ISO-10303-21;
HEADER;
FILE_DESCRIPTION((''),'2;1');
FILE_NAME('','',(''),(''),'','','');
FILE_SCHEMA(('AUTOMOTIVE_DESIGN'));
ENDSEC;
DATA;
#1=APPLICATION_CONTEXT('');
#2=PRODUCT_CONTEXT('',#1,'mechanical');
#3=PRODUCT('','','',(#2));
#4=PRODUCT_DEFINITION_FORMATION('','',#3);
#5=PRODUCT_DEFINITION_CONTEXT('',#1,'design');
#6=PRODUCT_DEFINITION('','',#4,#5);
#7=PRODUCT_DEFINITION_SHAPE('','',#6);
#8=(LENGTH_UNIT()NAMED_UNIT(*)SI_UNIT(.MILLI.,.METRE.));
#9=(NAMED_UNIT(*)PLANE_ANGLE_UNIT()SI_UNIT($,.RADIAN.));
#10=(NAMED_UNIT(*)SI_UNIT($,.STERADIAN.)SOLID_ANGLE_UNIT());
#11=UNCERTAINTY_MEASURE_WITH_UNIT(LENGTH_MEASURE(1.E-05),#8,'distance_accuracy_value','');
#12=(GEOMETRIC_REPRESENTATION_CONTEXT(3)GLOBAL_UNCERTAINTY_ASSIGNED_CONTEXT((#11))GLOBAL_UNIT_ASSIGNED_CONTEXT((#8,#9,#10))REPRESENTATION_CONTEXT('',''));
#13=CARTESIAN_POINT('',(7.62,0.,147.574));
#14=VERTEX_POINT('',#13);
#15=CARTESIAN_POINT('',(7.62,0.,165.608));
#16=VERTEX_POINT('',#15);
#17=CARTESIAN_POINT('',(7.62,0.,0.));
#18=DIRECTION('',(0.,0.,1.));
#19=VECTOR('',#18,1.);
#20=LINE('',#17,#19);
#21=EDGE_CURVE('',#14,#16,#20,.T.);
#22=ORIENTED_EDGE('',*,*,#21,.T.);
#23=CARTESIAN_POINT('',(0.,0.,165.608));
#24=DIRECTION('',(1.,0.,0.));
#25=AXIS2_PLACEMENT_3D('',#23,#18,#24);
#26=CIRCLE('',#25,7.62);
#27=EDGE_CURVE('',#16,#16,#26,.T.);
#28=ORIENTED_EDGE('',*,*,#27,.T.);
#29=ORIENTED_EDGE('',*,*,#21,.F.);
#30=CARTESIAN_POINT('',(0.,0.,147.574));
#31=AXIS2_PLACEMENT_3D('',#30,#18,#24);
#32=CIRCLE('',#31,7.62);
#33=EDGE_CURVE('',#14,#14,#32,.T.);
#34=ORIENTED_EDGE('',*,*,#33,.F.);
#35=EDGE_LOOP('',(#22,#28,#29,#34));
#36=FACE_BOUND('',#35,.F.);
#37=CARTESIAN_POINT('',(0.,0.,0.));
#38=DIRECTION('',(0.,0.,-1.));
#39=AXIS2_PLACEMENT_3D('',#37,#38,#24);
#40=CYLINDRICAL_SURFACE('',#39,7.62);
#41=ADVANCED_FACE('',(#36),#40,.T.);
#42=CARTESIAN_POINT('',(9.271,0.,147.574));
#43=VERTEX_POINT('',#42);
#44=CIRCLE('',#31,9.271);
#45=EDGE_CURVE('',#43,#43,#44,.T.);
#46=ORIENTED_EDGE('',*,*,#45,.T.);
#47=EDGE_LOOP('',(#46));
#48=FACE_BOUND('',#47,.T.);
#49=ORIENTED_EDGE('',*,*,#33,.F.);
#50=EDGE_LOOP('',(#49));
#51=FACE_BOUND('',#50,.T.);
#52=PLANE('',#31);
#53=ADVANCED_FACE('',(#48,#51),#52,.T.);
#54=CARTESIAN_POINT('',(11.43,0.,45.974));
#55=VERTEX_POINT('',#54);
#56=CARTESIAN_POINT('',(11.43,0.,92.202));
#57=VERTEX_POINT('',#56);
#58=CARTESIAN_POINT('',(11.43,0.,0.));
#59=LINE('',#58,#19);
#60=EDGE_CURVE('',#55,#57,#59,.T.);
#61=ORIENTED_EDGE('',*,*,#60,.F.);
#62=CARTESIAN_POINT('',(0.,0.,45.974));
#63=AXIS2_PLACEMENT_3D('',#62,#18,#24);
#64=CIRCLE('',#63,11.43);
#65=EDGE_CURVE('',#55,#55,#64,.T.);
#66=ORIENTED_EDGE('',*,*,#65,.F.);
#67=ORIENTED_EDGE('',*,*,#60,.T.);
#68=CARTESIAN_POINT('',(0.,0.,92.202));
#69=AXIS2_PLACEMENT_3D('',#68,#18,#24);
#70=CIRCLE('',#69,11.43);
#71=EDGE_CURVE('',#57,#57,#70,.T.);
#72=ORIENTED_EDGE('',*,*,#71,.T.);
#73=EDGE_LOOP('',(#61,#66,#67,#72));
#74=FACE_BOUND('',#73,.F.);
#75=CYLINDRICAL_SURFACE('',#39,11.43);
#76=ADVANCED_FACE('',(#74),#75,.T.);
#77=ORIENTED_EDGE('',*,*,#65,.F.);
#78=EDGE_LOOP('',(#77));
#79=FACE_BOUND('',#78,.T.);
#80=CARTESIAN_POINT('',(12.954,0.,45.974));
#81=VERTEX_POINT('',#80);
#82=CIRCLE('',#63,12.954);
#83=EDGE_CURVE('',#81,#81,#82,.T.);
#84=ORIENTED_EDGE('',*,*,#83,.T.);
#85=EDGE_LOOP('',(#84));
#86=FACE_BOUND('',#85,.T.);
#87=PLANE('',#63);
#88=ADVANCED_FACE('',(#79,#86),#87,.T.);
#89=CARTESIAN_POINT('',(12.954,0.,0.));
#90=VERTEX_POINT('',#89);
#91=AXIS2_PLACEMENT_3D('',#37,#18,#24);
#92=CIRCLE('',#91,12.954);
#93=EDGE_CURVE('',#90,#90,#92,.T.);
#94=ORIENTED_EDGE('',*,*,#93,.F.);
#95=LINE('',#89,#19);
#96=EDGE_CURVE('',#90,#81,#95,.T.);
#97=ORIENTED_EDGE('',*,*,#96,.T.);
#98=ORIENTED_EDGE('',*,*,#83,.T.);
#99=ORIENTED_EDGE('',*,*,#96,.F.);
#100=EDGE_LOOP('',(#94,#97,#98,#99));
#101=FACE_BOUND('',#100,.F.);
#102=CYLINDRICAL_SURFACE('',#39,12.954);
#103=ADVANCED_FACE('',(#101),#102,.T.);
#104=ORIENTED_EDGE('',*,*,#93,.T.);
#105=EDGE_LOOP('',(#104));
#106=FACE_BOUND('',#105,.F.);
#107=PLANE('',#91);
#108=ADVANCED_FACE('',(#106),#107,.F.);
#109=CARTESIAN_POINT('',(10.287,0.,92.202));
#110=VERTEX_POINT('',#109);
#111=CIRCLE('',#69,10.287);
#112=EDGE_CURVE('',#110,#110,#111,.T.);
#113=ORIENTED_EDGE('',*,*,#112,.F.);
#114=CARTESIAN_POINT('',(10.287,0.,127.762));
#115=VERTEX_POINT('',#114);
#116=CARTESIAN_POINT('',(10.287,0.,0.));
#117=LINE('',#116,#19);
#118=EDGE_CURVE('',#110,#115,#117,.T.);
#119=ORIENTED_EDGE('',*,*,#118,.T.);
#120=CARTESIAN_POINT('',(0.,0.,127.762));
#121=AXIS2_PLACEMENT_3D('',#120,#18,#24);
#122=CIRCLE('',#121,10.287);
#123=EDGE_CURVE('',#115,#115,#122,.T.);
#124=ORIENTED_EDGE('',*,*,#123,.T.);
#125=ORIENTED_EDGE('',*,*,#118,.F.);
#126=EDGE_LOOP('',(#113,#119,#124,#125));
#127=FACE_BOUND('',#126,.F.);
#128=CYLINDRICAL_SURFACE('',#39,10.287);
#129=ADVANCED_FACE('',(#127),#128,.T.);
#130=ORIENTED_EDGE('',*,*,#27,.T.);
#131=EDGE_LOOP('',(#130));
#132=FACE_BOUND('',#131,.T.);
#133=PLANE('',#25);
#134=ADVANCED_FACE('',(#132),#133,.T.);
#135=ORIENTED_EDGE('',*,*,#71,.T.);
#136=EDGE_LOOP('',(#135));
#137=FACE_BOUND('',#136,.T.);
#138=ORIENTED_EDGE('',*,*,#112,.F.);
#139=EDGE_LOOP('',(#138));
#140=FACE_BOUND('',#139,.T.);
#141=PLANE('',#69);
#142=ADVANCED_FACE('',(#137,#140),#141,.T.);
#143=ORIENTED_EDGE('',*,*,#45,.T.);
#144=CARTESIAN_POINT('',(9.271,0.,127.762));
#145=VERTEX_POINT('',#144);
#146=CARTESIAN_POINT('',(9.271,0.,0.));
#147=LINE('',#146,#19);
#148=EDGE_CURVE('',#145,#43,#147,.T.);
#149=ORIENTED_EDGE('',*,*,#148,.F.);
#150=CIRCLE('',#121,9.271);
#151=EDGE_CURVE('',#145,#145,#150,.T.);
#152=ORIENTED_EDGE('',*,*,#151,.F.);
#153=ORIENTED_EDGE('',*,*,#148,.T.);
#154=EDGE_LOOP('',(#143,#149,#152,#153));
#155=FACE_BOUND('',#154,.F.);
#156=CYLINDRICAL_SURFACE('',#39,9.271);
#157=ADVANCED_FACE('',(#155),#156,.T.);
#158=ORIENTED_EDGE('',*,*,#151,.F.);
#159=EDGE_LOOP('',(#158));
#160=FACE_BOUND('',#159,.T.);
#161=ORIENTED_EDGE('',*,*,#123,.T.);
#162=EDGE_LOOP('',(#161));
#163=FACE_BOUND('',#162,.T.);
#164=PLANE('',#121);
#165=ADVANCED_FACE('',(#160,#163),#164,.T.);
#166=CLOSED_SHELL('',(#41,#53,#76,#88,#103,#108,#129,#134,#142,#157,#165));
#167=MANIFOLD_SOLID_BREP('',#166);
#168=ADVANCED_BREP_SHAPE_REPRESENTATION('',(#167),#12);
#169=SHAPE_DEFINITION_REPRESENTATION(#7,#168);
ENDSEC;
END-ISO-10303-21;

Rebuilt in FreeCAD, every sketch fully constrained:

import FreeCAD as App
import Part
import Sketcher

V = App.Vector
Q = App.Units.Quantity

doc = App.newDocument("Part")
params = doc.addObject("Spreadsheet::Sheet", "Params")
for row, (alias, value) in enumerate([
    ("sketch1_diameter", "0.9 in"),
    ("sketch1_diameter2", "1.02 in"),
    ("pad1_length", "1.81 in"),
    ("sketch2_diameter", "0.9 in"),
    ("sketch2_diameter2", "0.81 in"),
    ("pad2_length", "3.63 in"),
    ("sketch3_diameter", "0.81 in"),
    ("sketch3_diameter2", "0.73 in"),
    ("pad3_length", "5.03 in"),
    ("sketch4_diameter", "0.6 in"),
    ("sketch4_diameter2", "0.73 in"),
    ("pad4_length", "5.81 in"),
    ("sketch5_diameter", "0.6 in"),
    ("pad5_length", "6.52 in"),
], start=1):
    params.set(f"A{row}", alias)
    params.set(f"B{row}", "=" + value)
    params.setAlias(f"B{row}", alias)

body = doc.addObject("PartDesign::Body", "Body")

sketch1 = body.newObject("Sketcher::SketchObject", "Sketch")
sketch1.AttachmentSupport = (doc.getObject("XY_Plane"), [""])
sketch1.MapMode = "FlatFace"
sketch1.addGeometry(Part.Circle(V(0, 0, 0), V(0, 0, 1), 12.954), False)
sketch1.addGeometry(Part.Circle(V(0, 0, 0), V(0, 0, 1), 11.43), False)
sketch1.addConstraint(Sketcher.Constraint("Coincident", 0, 3, -1, 1))
sketch1.addConstraint(Sketcher.Constraint("Coincident", 1, 3, -1, 1))
sketch1.addConstraint(Sketcher.Constraint("Diameter", 1, Q("0.9 in")))
sketch1.addConstraint(Sketcher.Constraint("Diameter", 0, Q("1.02 in")))
sketch1.setExpression("Constraints[2]", "Params.sketch1_diameter")
sketch1.setExpression("Constraints[3]", "Params.sketch1_diameter2")
pad1 = body.newObject("PartDesign::Pad", "Pad")
pad1.Profile = sketch1
pad1.setExpression("Length", "Params.pad1_length")

sketch2 = body.newObject("Sketcher::SketchObject", "Sketch001")
sketch2.AttachmentSupport = (doc.getObject("XY_Plane"), [""])
sketch2.MapMode = "FlatFace"
sketch2.addGeometry(Part.Circle(V(0, 0, 0), V(0, 0, 1), 11.43), False)
sketch2.addGeometry(Part.Circle(V(0, 0, 0), V(0, 0, 1), 10.287), False)
sketch2.addConstraint(Sketcher.Constraint("Coincident", 0, 3, -1, 1))
sketch2.addConstraint(Sketcher.Constraint("Coincident", 1, 3, -1, 1))
sketch2.addConstraint(Sketcher.Constraint("Diameter", 0, Q("0.9 in")))
sketch2.addConstraint(Sketcher.Constraint("Diameter", 1, Q("0.81 in")))
sketch2.setExpression("Constraints[2]", "Params.sketch2_diameter")
sketch2.setExpression("Constraints[3]", "Params.sketch2_diameter2")
pad2 = body.newObject("PartDesign::Pad", "Pad001")
pad2.Profile = sketch2
pad2.setExpression("Length", "Params.pad2_length")

sketch3 = body.newObject("Sketcher::SketchObject", "Sketch002")
sketch3.AttachmentSupport = (doc.getObject("XY_Plane"), [""])
sketch3.MapMode = "FlatFace"
sketch3.addGeometry(Part.Circle(V(0, 0, 0), V(0, 0, 1), 10.287), False)
sketch3.addGeometry(Part.Circle(V(0, 0, 0), V(0, 0, 1), 9.271), False)
sketch3.addConstraint(Sketcher.Constraint("Coincident", 0, 3, -1, 1))
sketch3.addConstraint(Sketcher.Constraint("Coincident", 1, 3, -1, 1))
sketch3.addConstraint(Sketcher.Constraint("Diameter", 0, Q("0.81 in")))
sketch3.addConstraint(Sketcher.Constraint("Diameter", 1, Q("0.73 in")))
sketch3.setExpression("Constraints[2]", "Params.sketch3_diameter")
sketch3.setExpression("Constraints[3]", "Params.sketch3_diameter2")
pad3 = body.newObject("PartDesign::Pad", "Pad002")
pad3.Profile = sketch3
pad3.setExpression("Length", "Params.pad3_length")

sketch4 = body.newObject("Sketcher::SketchObject", "Sketch003")
sketch4.AttachmentSupport = (doc.getObject("XY_Plane"), [""])
sketch4.MapMode = "FlatFace"
sketch4.addGeometry(Part.Circle(V(0, 0, 0), V(0, 0, 1), 9.271), False)
sketch4.addGeometry(Part.Circle(V(0, 0, 0), V(0, 0, 1), 7.62), False)
sketch4.addConstraint(Sketcher.Constraint("Coincident", 0, 3, -1, 1))
sketch4.addConstraint(Sketcher.Constraint("Coincident", 1, 3, -1, 1))
sketch4.addConstraint(Sketcher.Constraint("Diameter", 1, Q("0.6 in")))
sketch4.addConstraint(Sketcher.Constraint("Diameter", 0, Q("0.73 in")))
sketch4.setExpression("Constraints[2]", "Params.sketch4_diameter")
sketch4.setExpression("Constraints[3]", "Params.sketch4_diameter2")
pad4 = body.newObject("PartDesign::Pad", "Pad003")
pad4.Profile = sketch4
pad4.setExpression("Length", "Params.pad4_length")

sketch5 = body.newObject("Sketcher::SketchObject", "Sketch004")
sketch5.AttachmentSupport = (doc.getObject("XY_Plane"), [""])
sketch5.MapMode = "FlatFace"
sketch5.addGeometry(Part.Circle(V(0, 0, 0), V(0, 0, 1), 7.62), False)
sketch5.addConstraint(Sketcher.Constraint("Coincident", 0, 3, -1, 1))
sketch5.addConstraint(Sketcher.Constraint("Diameter", 0, Q("0.6 in")))
sketch5.setExpression("Constraints[1]", "Params.sketch5_diameter")
pad5 = body.newObject("PartDesign::Pad", "Pad004")
pad5.Profile = sketch5
pad5.setExpression("Length", "Params.pad5_length")

doc.recompute()
